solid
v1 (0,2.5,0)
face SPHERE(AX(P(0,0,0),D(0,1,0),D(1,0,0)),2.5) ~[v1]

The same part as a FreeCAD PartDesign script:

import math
import FreeCAD as App
import Part
import Sketcher
Q = App.Units.Quantity

doc = App.newDocument("Part")
body = doc.addObject("PartDesign::Body", "Body")

sketch1 = body.newObject("Sketcher::SketchObject", "Sketch")
sketch1.AttachmentSupport = (doc.getObject("XY_Plane"), [""])
sketch1.MapMode = "FlatFace"
sketch1.addGeometry([
    Part.LineSegment(App.Vector(0, 2.5, 0), App.Vector(0, -2.5, 0)),
    Part.ArcOfCircle(Part.Circle(App.Vector(0, 0, 0), App.Vector(0, 0, 1), 2.5), math.radians(-90), math.radians(90)),
], False)
sketch1.addConstraint([
    Sketcher.Constraint("Coincident", 0, 1, 1, 2),
    Sketcher.Constraint("Coincident", 1, 1, 0, 2),
    Sketcher.Constraint("Vertical", 0),
    Sketcher.Constraint("Coincident", 1, 3, -1, 1),
    Sketcher.Constraint("PointOnObject", 0, 1, -2),
    Sketcher.Constraint("Radius", 1, Q("2.5 mm")),
])
revolution = body.newObject("PartDesign::Revolution", "Revolution")
revolution.Profile = sketch1
revolution.ReferenceAxis = (sketch1, ["V_Axis"])
revolution.Angle = 360

doc.recompute()
